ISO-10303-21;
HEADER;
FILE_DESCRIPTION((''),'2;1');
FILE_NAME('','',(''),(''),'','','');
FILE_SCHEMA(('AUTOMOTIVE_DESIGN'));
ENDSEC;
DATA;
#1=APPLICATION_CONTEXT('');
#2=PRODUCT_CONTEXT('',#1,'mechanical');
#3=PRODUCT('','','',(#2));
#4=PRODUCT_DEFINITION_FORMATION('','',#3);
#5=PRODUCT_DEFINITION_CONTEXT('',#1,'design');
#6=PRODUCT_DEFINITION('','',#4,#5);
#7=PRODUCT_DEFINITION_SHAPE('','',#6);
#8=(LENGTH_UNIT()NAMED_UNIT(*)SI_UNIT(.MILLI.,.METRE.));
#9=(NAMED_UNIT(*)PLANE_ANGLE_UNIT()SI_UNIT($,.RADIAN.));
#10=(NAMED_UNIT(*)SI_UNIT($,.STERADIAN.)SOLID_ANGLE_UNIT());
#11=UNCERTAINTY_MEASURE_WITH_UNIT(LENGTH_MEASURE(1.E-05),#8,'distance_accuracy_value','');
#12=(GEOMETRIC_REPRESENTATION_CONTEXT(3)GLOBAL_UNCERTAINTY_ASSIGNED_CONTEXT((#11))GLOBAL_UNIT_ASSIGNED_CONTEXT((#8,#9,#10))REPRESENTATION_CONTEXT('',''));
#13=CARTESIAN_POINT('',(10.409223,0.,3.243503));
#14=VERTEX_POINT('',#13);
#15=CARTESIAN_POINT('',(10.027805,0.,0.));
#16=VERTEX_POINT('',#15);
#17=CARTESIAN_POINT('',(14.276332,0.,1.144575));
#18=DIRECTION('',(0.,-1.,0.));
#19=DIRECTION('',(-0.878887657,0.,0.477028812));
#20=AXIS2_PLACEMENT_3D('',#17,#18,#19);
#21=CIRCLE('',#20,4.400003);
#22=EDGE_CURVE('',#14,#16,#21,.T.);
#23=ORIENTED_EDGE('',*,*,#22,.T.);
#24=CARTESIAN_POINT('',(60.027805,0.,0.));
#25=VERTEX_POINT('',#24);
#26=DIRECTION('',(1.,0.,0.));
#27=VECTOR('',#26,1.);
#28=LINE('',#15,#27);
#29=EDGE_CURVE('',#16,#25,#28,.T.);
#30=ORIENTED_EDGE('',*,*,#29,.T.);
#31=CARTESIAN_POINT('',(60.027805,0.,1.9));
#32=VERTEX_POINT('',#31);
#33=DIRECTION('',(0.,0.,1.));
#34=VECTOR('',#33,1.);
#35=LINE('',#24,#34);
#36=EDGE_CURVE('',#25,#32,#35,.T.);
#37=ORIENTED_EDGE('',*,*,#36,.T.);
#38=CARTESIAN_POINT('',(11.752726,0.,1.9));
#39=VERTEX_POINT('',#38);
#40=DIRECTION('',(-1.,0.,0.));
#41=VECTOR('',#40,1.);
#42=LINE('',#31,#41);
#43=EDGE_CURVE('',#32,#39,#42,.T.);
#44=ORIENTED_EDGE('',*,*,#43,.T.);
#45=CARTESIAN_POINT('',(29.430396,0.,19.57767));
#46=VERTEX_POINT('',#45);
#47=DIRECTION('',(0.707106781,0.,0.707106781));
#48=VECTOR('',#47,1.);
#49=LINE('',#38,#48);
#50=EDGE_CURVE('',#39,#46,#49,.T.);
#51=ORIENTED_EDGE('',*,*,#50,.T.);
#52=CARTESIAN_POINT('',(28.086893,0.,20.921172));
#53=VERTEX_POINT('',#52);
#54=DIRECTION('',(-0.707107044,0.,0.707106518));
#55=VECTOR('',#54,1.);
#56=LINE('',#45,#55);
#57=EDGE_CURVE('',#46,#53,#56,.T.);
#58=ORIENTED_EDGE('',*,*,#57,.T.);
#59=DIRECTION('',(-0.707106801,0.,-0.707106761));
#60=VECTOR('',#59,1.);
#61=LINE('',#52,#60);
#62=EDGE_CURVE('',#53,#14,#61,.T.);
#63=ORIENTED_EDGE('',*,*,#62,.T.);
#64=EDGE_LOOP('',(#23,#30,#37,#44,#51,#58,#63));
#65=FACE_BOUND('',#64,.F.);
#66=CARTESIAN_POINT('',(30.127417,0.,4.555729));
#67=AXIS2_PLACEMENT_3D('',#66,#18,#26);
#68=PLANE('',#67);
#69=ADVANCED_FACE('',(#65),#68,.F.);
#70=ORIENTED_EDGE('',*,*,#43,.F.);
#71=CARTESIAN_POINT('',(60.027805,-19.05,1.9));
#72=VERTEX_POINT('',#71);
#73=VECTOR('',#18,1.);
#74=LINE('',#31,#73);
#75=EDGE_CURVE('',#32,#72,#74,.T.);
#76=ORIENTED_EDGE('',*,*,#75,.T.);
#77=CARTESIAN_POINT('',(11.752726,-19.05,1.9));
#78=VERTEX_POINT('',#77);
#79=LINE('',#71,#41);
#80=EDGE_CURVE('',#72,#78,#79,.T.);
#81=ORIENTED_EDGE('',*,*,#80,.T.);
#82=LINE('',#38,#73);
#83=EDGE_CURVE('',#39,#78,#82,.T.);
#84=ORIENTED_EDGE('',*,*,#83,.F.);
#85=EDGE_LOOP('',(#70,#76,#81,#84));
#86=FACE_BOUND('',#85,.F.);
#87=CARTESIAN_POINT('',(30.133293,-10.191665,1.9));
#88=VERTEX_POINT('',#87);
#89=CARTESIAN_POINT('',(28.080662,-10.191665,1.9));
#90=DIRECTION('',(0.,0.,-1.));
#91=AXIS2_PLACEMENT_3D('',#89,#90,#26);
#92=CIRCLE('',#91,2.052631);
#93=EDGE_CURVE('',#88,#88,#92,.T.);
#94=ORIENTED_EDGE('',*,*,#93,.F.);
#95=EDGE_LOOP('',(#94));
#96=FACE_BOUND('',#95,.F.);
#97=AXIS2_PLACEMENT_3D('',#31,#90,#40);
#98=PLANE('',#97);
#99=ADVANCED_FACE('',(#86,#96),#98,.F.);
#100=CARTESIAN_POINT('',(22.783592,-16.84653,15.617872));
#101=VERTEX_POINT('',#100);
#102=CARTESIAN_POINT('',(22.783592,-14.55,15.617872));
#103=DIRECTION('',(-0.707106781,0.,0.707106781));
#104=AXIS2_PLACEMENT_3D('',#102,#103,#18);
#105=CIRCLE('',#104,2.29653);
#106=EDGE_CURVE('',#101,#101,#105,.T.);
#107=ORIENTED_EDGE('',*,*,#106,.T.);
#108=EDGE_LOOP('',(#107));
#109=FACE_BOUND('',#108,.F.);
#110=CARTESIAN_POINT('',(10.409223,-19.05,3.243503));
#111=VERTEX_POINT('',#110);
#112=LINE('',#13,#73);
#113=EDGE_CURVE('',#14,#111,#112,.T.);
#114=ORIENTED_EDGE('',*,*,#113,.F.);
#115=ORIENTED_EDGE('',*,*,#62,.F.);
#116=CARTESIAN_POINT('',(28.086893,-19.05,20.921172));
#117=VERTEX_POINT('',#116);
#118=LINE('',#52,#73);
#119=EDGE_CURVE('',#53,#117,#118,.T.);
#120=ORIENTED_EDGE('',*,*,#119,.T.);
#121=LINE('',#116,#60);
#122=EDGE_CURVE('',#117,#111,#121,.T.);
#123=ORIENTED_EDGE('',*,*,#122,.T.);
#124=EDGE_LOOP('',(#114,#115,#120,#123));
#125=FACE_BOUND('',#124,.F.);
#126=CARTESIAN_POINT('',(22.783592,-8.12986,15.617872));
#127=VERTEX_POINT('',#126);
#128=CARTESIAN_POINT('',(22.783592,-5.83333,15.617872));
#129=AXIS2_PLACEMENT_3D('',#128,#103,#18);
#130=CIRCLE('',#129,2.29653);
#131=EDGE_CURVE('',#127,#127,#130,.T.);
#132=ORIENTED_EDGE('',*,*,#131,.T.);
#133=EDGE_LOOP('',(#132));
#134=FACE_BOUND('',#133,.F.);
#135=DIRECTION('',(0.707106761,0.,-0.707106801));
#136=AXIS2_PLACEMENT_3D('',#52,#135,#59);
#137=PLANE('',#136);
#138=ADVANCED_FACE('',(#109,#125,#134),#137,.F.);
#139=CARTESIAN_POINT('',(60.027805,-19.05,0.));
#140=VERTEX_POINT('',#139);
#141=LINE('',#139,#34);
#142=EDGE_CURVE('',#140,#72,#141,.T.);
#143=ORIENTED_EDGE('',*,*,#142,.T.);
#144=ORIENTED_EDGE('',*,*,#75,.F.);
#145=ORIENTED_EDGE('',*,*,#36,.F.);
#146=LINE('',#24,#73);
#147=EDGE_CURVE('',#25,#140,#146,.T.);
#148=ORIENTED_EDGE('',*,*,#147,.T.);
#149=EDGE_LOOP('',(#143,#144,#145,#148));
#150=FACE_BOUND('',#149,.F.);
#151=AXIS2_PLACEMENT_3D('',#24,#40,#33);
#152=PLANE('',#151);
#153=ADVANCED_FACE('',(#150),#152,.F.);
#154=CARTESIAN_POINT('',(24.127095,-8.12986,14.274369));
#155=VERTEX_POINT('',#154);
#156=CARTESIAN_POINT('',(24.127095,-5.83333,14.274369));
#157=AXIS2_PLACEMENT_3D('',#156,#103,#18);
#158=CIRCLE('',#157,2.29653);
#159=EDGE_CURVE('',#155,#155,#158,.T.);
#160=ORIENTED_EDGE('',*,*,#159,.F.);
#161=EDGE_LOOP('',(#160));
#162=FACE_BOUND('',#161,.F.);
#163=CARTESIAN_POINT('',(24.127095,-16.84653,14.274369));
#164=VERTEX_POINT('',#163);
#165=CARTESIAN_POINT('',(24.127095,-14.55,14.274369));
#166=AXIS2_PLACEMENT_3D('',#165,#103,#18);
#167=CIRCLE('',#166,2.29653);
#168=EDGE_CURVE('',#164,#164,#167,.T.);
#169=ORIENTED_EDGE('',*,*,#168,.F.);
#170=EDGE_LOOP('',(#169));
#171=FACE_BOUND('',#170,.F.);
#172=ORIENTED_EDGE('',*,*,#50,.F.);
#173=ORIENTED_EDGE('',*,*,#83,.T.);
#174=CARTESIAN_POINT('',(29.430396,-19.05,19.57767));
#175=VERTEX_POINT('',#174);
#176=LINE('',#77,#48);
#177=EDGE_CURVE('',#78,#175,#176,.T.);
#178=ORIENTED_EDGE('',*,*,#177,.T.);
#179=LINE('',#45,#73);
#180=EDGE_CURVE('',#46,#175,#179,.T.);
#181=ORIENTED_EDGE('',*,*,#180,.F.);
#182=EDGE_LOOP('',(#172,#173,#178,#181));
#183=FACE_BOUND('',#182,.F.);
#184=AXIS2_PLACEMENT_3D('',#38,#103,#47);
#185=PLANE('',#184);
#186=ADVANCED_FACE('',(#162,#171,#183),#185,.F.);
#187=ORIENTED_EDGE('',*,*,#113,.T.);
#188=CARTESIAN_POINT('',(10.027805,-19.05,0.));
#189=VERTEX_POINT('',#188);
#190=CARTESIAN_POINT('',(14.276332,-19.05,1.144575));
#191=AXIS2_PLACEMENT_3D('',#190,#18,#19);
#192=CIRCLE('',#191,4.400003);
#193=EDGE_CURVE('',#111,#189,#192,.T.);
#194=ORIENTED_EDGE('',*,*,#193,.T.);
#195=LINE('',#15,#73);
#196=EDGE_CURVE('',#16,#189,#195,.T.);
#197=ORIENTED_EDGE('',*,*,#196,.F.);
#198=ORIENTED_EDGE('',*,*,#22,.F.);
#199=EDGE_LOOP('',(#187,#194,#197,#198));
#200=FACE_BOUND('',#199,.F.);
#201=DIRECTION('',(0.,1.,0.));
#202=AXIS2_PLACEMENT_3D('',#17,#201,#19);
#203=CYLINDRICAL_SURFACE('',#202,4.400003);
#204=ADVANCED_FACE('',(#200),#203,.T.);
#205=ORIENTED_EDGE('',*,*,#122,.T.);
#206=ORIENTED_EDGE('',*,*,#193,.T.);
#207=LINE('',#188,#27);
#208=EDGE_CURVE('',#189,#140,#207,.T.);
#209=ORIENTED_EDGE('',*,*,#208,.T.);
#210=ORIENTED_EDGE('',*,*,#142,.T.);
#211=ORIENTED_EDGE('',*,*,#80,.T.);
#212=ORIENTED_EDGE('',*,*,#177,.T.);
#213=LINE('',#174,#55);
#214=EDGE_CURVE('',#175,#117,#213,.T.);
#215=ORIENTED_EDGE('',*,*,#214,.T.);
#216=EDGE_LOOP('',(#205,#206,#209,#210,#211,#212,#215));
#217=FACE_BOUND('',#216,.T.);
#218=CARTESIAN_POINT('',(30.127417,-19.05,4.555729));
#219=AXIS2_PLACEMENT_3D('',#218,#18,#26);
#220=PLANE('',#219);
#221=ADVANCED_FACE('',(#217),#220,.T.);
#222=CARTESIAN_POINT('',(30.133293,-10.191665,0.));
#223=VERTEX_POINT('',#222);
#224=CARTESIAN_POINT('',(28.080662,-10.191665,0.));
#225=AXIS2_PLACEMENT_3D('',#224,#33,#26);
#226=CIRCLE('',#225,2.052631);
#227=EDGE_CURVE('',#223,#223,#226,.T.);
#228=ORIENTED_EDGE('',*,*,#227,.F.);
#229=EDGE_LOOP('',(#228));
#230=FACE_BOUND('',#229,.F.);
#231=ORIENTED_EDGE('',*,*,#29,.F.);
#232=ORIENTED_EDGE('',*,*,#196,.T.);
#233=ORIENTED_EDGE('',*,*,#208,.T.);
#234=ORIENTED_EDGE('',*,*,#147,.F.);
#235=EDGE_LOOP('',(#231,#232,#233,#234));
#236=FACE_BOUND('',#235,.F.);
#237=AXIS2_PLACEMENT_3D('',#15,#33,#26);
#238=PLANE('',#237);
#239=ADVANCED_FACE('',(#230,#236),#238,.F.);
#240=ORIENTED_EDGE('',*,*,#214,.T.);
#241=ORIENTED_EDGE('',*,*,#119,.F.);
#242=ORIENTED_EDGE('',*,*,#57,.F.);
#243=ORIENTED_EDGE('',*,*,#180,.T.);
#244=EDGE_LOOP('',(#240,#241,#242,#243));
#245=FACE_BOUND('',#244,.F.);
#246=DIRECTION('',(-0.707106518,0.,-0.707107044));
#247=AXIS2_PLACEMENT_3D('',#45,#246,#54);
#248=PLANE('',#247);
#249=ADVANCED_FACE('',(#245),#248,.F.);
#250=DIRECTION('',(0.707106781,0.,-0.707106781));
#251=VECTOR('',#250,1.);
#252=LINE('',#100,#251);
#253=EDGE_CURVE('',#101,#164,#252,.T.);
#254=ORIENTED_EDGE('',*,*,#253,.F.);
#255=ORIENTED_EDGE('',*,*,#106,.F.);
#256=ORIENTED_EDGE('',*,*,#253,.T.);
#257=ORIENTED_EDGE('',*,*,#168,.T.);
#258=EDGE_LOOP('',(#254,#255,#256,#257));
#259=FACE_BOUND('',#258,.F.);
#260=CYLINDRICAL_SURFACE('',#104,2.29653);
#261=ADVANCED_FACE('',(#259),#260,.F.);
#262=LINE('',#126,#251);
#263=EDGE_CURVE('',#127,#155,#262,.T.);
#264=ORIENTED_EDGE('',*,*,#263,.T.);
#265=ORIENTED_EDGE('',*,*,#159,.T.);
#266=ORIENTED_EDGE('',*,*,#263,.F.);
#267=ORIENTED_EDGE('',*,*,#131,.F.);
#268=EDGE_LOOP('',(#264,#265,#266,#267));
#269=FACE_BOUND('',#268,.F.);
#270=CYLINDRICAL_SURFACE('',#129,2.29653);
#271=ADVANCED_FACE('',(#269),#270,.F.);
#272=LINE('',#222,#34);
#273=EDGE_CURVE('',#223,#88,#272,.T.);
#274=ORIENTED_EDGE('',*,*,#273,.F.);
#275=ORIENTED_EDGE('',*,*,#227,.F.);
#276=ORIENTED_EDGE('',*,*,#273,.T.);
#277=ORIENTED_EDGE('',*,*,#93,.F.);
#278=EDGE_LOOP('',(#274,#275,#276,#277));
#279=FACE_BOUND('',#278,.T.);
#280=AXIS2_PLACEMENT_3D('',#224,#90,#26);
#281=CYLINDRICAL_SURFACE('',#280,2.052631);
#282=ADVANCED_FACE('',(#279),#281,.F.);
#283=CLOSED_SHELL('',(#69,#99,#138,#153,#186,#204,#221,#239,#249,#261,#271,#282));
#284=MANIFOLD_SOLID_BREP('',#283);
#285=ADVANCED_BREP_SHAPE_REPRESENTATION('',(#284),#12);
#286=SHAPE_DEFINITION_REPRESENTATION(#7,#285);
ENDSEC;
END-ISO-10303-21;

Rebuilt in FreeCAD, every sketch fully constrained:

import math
import FreeCAD as App
import Part
import Sketcher

V = App.Vector
Q = App.Units.Quantity

doc = App.newDocument("Part")
body = doc.addObject("PartDesign::Body", "Body")

# Sketch on XZ plane
sketch1 = body.newObject("Sketcher::SketchObject", "Sketch")
sketch1.AttachmentSupport = (doc.getObject("XZ_Plane"), [""])
sketch1.MapMode = "FlatFace"
sketch1.addGeometry([
    Part.LineSegment(V(60, 1.9, 0), V(11.8, 1.9, 0)),  # 0
    Part.LineSegment(V(11.8, 1.9, 0), V(29.4, 19.6, 0)),  # 1
    Part.LineSegment(V(29.4, 19.6, 0), V(28.1, 20.9, 0)),  # 2
    Part.LineSegment(V(28.1, 20.9, 0), V(10.4, 3.2, 0)),  # 3
    Part.ArcOfCircle(Part.Circle(V(14.3, 1.1, 0), V(0, 0, 1), 4.4), math.radians(152), math.radians(195)),  # 4
    Part.LineSegment(V(10, 0, 0), V(60, 0, 0)),  # 5
    Part.LineSegment(V(60, 0, 0), V(60, 1.9, 0)),  # 6
], False)
sketch1.addConstraint([
    Sketcher.Constraint("Coincident", 0, 2, 1, 1),
    Sketcher.Constraint("Coincident", 1, 2, 2, 1),
    Sketcher.Constraint("Coincident", 2, 2, 3, 1),
    Sketcher.Constraint("Coincident", 3, 2, 4, 1),
    Sketcher.Constraint("Coincident", 4, 2, 5, 1),
    Sketcher.Constraint("Coincident", 5, 2, 6, 1),
    Sketcher.Constraint("Coincident", 6, 2, 0, 1),
    Sketcher.Constraint("Horizontal", 0),
    Sketcher.Constraint("Horizontal", 5),
    Sketcher.Constraint("Vertical", 6),
    Sketcher.Constraint("PointOnObject", 4, 2, -1),
    Sketcher.Constraint("Perpendicular", 1, 2),
    Sketcher.Constraint("Perpendicular", 2, 3),
    Sketcher.Constraint("Equal", 1, 3),
    Sketcher.Constraint("DistanceX", 5, 1, 5, 2, 50.0),
    Sketcher.Constraint("Angle", 1, Q("45 deg")),
    Sketcher.Constraint("Distance", 1, 25.000001),
    Sketcher.Constraint("DistanceY", 6, 1, 6, 2, 1.9),
    Sketcher.Constraint("Distance", 2, 1.899999),
    Sketcher.Constraint("Radius", 4, 4.400003),
    Sketcher.Constraint("DistanceX", 0, 2, 0, 1, 48.275079),
    Sketcher.Constraint("DistanceX", -1, 1, 4, 3, 14.276332),
])
pad1 = body.newObject("PartDesign::Pad", "Pad")
pad1.Profile = sketch1
pad1.Length = 19.05

# Sketch on an angled plane
sketch2 = body.newObject("Sketcher::SketchObject", "Sketch001")
sketch2.Placement = App.Placement(V(3.58286, 0, -3.58286), App.Rotation(V(0, -1, 0), V(0.707106781, 0, 0.707106781), V(-0.707106781, 0, 0.707106781), "ZXY"))
sketch2.addGeometry([
    Part.Circle(V(14.6, 27.2, 0), V(0, 0, 1), 2.3),
    Part.Circle(V(5.8, 27.2, 0), V(0, 0, 1), 2.3),
], False)
sketch2.addConstraint([
    Sketcher.Constraint("Equal", 0, 1),
    Sketcher.Constraint("Horizontal", 0, 3, 1, 3),
    Sketcher.Constraint("Diameter", 0, 4.59306),
    Sketcher.Constraint("DistanceX", -1, 1, 0, 3, 14.55),
    Sketcher.Constraint("DistanceX", -1, 1, 1, 3, 5.83333),
    Sketcher.Constraint("DistanceY", -1, 1, 0, 3, 27.153935),
])
pocket1 = body.newObject("PartDesign::Pocket", "Pocket")
pocket1.Profile = sketch2
pocket1.Length = 5.588

# Sketch on XY plane
sketch3 = body.newObject("Sketcher::SketchObject", "Sketch002")
sketch3.AttachmentSupport = (doc.getObject("XY_Plane"), [""])
sketch3.MapMode = "FlatFace"
sketch3.addGeometry(Part.Circle(V(28.1, -10.2, 0), V(0, 0, 1), 2.1), False)
sketch3.addConstraint([
    Sketcher.Constraint("Diameter", 0, 4.105262),
    Sketcher.Constraint("DistanceX", -1, 1, 0, 3, 28.080662),
    Sketcher.Constraint("DistanceY", 0, 3, -1, 1, 10.191665),
])
pocket2 = body.newObject("PartDesign::Pocket", "Pocket001")
pocket2.Profile = sketch3
pocket2.Length = 5.842
pocket2.Reversed = True

doc.recompute()
